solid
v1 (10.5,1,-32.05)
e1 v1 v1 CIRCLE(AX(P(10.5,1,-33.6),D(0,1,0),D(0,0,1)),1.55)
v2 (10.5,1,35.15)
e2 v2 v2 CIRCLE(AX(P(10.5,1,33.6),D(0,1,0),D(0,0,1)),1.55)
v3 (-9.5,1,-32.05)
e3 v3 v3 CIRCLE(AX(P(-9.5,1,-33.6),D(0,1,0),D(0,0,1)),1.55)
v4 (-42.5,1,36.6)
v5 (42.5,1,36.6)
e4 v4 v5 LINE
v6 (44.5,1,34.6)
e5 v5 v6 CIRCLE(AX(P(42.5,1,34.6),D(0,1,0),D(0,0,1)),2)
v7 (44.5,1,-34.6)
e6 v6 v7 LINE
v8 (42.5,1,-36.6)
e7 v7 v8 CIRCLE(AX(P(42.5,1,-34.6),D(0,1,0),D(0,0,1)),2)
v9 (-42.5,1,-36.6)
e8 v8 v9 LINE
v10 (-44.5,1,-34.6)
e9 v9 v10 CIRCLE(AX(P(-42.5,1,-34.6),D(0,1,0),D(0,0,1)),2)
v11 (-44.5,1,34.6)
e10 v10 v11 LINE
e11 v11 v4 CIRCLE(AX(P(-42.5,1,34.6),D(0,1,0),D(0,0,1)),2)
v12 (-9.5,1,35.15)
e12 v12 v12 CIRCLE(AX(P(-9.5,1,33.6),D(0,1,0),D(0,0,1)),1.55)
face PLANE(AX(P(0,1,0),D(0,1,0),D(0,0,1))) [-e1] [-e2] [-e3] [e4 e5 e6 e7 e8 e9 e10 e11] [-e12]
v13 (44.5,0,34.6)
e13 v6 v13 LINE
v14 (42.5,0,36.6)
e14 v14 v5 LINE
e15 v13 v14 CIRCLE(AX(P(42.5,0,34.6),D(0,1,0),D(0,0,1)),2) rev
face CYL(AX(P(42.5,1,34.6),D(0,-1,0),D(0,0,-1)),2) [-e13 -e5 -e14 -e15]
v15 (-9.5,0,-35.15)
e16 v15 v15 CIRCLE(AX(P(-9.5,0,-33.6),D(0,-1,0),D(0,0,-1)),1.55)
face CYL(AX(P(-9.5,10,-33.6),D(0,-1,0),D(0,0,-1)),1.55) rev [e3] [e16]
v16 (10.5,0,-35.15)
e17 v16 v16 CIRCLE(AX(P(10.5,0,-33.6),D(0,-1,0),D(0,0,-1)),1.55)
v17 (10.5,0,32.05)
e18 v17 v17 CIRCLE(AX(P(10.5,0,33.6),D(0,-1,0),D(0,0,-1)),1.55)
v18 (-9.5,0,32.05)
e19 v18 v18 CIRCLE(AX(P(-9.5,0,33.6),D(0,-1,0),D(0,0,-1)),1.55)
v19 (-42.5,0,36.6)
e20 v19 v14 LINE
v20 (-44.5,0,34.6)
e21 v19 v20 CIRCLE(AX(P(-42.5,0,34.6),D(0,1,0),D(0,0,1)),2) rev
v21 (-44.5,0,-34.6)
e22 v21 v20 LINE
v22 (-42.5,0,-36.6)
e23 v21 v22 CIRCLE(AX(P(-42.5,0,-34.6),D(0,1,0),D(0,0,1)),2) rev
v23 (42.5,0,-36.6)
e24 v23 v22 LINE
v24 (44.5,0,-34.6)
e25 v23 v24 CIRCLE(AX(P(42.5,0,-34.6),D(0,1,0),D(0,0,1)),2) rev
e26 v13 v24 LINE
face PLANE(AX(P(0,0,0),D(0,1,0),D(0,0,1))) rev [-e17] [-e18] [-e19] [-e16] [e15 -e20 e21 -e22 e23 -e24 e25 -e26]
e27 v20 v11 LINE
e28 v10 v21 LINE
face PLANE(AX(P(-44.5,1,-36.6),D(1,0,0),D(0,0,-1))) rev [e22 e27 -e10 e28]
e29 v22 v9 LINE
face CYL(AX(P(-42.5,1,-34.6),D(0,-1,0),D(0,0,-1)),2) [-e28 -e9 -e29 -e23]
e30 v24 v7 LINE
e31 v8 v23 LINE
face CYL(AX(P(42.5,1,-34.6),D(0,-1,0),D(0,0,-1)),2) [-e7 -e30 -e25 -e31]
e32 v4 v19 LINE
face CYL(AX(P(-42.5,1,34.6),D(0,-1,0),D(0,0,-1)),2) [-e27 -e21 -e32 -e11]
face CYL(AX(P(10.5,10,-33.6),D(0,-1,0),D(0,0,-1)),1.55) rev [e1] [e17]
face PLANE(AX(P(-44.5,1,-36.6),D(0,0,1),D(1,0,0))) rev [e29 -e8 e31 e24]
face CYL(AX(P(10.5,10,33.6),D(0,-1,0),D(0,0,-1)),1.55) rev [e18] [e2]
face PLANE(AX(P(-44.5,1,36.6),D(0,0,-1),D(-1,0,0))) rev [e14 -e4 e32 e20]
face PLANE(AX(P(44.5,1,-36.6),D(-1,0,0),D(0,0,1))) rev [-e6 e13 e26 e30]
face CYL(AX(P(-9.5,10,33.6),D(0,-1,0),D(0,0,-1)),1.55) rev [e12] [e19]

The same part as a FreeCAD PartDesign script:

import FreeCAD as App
import Part
import Sketcher

V = App.Vector


def edges_at(feature, points):
    """Names of the edges that pass closest to the given points."""
    edges = feature.Shape.Edges
    near = lambda p: min(range(len(edges)), key=lambda i: edges[i].distToShape(Part.Vertex(*p))[0])
    return sorted({f"Edge{near(p) + 1}" for p in points})

doc = App.newDocument("Part")
body = doc.addObject("PartDesign::Body", "Body")

# Sketch on XZ plane
sketch1 = body.newObject("Sketcher::SketchObject", "Sketch")
sketch1.AttachmentSupport = (doc.getObject("XZ_Plane"), [""])
sketch1.MapMode = "FlatFace"
sketch1.addGeometry([
    Part.LineSegment(V(-44, -37, 0), V(-44, 37, 0)),
    Part.LineSegment(V(-44, 37, 0), V(44, 37, 0)),
    Part.LineSegment(V(44, 37, 0), V(44, -37, 0)),
    Part.LineSegment(V(44, -37, 0), V(-44, -37, 0)),
], False)
sketch1.addConstraint([
    Sketcher.Constraint("Coincident", 0, 2, 1, 1),
    Sketcher.Constraint("Coincident", 1, 2, 2, 1),
    Sketcher.Constraint("Coincident", 2, 2, 3, 1),
    Sketcher.Constraint("Coincident", 3, 2, 0, 1),
    Sketcher.Constraint("Vertical", 0),
    Sketcher.Constraint("Horizontal", 1),
    Sketcher.Constraint("Vertical", 2),
    Sketcher.Constraint("Horizontal", 3),
    Sketcher.Constraint("Symmetric", 0, 2, 2, 2, -1, 1),
    Sketcher.Constraint("DistanceX", 1, 1, 1, 2, 89.0),
    Sketcher.Constraint("DistanceY", 0, 1, 0, 2, 73.2),
])
pad1 = body.newObject("PartDesign::Pad", "Pad")
pad1.Profile = sketch1
pad1.Length = 1
pad1.Reversed = True

# Sketch on XZ plane
sketch2 = body.newObject("Sketcher::SketchObject", "Sketch001")
sketch2.AttachmentSupport = (doc.getObject("XZ_Plane"), [""])
sketch2.MapMode = "FlatFace"
sketch2.addGeometry([
    Part.Circle(V(10.5, 33.6, 0), V(0, 0, 1), 1.6),
    Part.Circle(V(-9.5, 33.6, 0), V(0, 0, 1), 1.6),
    Part.Circle(V(-9.5, -33.6, 0), V(0, 0, 1), 1.6),
    Part.Circle(V(10.5, -33.6, 0), V(0, 0, 1), 1.6),
], False)
sketch2.addConstraint([
    Sketcher.Constraint("Equal", 0, 1),
    Sketcher.Constraint("Equal", 1, 2),
    Sketcher.Constraint("Equal", 2, 3),
    Sketcher.Constraint("Symmetric", 1, 3, 2, 3, -1),
    Sketcher.Constraint("Symmetric", 0, 3, 3, 3, -1),
    Sketcher.Constraint("Horizontal", 0, 3, 1, 3),
    Sketcher.Constraint("Diameter", 0, 3.1),
    Sketcher.Constraint("DistanceX", 1, 3, 0, 3, 20.0),
    Sketcher.Constraint("DistanceX", -1, 1, 0, 3, 10.5),
    Sketcher.Constraint("DistanceY", -1, 1, 0, 3, 33.6),
])
pocket1 = body.newObject("PartDesign::Pocket", "Pocket")
pocket1.Profile = sketch2
pocket1.Length = 10
doc.recompute()

fillet = body.newObject("PartDesign::Fillet", "Fillet")
fillet.Base = (pocket1, edges_at(pocket1, [
    (44.5, 0.5, 36.6),
    (-44.5, 0.5, 36.6),
    (-44.5, 0.5, -36.6),
    (44.5, 0.5, -36.6),
]))
fillet.Radius = 2

doc.recompute()
